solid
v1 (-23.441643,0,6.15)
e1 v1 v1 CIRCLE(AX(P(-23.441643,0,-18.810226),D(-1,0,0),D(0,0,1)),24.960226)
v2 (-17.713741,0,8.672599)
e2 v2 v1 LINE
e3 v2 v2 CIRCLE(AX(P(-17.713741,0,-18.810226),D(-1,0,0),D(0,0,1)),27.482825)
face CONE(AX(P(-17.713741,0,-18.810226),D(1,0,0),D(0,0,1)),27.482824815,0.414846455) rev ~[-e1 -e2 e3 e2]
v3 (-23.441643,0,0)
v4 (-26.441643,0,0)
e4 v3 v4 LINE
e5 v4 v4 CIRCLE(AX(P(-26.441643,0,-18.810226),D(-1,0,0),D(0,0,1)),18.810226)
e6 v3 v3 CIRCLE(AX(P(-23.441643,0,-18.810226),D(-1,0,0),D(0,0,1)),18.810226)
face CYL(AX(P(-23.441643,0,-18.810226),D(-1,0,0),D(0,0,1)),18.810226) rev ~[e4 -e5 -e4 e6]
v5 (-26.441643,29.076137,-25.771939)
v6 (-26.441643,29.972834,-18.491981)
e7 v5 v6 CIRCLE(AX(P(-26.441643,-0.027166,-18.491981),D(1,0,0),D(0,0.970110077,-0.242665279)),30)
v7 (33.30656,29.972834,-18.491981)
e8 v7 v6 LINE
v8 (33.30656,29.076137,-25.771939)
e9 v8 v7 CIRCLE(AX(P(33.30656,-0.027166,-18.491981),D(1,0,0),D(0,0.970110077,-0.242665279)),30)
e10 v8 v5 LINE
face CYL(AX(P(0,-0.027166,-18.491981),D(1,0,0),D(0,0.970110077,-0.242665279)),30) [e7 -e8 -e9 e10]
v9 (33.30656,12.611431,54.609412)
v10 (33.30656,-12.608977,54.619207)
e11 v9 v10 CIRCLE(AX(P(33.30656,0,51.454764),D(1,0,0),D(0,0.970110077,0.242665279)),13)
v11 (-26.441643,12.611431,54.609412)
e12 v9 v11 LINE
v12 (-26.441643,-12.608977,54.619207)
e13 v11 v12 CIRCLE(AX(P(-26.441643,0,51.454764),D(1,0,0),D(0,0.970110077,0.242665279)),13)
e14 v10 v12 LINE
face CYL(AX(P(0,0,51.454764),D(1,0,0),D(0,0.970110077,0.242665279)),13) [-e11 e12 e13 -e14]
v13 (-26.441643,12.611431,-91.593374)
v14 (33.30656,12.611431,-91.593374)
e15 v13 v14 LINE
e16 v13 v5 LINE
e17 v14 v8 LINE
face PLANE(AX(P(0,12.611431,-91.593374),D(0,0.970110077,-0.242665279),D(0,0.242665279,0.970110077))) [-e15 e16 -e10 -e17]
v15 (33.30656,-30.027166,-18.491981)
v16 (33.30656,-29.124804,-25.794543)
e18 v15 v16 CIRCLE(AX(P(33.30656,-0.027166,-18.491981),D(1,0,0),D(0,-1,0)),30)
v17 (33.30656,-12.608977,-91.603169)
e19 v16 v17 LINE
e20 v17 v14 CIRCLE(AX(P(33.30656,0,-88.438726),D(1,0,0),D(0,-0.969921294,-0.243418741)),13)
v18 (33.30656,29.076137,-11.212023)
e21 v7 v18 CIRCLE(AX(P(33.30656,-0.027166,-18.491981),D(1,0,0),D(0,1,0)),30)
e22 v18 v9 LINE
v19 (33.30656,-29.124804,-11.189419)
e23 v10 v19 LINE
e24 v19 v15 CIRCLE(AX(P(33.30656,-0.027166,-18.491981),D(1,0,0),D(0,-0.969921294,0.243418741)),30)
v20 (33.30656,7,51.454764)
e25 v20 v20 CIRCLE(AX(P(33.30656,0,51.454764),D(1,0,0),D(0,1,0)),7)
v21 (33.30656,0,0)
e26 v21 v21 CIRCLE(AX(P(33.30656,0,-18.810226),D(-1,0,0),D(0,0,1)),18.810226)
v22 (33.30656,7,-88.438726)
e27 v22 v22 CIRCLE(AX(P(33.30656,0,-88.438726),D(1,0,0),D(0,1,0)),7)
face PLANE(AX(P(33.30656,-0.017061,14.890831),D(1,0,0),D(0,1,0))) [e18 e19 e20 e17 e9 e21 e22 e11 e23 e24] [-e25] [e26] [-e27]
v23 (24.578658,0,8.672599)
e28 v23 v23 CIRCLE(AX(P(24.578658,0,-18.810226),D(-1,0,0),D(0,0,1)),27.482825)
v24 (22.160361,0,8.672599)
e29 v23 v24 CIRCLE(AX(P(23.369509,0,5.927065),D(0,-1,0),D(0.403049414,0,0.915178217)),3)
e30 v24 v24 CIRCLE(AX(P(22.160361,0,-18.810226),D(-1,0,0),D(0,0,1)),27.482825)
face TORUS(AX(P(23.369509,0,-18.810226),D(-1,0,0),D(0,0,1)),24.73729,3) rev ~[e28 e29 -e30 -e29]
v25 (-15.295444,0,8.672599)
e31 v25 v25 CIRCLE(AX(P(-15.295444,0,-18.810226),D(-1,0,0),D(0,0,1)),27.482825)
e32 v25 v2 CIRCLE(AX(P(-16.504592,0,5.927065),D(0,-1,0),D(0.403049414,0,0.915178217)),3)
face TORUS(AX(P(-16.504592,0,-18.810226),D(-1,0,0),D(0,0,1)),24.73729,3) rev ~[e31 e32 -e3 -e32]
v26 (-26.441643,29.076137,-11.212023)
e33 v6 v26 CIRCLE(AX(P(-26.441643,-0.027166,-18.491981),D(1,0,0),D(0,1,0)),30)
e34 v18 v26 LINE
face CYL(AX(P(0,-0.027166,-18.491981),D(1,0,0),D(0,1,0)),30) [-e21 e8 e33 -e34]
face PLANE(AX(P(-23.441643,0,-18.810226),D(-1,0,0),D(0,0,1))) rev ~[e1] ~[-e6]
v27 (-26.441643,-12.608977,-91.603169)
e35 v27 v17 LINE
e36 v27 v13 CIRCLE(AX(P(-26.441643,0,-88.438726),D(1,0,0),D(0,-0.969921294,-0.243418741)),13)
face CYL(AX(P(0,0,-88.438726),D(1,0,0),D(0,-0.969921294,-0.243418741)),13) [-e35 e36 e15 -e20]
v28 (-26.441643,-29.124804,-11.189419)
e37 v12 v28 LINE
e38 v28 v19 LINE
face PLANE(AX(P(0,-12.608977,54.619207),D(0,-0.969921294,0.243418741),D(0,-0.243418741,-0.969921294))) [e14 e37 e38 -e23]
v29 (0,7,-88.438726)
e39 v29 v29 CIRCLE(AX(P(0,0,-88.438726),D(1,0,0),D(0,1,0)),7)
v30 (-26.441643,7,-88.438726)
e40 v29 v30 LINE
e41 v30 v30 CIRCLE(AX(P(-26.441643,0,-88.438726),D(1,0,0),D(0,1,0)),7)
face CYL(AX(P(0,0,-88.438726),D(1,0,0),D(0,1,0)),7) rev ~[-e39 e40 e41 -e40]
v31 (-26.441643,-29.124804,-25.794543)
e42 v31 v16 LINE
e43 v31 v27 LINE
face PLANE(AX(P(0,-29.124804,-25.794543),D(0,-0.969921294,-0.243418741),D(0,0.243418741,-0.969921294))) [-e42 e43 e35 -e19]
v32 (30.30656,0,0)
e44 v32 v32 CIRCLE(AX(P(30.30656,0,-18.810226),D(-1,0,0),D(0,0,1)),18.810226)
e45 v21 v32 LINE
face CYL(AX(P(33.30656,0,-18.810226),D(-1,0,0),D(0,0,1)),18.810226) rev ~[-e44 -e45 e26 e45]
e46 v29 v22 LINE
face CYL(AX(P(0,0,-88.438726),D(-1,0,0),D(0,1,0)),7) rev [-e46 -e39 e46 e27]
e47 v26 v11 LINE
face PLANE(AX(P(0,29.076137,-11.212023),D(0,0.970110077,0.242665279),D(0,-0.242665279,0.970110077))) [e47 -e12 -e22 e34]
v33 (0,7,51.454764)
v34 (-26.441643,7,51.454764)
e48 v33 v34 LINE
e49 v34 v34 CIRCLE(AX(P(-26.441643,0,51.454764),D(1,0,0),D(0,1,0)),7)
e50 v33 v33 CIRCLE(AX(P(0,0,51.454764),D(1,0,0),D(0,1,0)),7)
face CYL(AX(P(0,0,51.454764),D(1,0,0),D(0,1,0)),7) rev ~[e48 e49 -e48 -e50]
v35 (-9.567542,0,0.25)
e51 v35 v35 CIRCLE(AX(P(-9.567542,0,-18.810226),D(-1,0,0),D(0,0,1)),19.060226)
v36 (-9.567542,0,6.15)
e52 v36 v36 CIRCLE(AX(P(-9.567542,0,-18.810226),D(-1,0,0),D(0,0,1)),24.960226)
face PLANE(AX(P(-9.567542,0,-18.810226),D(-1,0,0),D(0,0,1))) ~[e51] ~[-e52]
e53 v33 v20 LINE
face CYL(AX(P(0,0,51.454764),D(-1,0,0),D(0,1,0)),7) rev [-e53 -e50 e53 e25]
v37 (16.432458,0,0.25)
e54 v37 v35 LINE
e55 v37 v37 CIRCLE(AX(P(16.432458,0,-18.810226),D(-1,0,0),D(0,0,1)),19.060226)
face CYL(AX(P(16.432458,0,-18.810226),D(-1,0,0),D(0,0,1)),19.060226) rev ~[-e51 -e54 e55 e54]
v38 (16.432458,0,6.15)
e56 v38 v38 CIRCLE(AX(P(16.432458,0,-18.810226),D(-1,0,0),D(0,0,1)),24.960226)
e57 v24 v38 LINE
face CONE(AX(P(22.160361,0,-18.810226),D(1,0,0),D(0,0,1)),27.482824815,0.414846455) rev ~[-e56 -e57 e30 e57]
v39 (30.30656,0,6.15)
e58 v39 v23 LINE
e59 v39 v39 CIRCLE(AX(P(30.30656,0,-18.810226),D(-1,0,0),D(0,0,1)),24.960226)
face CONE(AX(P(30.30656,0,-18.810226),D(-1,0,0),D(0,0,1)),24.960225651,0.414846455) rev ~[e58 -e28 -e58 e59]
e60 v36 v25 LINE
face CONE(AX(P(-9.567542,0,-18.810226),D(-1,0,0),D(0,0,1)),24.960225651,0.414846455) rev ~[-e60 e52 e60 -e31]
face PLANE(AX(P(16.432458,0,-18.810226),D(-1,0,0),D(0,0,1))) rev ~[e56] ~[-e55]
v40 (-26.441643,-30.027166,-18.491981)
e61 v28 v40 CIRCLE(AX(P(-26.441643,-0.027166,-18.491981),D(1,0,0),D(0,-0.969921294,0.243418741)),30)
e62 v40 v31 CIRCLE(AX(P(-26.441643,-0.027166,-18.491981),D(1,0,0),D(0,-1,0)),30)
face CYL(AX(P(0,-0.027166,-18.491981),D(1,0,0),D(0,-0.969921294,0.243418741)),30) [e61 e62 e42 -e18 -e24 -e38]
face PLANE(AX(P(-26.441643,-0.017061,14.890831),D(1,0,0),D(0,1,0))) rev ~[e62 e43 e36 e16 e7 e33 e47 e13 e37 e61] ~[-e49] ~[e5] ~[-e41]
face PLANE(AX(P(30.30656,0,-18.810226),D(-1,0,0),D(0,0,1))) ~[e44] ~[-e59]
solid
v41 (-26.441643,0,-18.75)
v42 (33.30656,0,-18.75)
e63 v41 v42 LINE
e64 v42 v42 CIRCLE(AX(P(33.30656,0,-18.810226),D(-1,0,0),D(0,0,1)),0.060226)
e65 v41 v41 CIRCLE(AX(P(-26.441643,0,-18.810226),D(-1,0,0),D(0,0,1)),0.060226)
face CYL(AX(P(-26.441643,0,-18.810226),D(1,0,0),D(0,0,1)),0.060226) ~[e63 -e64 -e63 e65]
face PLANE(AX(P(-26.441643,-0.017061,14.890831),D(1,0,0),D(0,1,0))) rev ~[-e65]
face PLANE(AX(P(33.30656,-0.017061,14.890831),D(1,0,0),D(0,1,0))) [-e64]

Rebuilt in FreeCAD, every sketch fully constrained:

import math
import FreeCAD as App
import Part
import Sketcher

doc = App.newDocument("Part")
body = doc.addObject("PartDesign::Body", "Body")

# Sketch on XZ plane
sketch1 = body.newObject("Sketcher::SketchObject", "Sketch")
sketch1.AttachmentSupport = (doc.getObject("XZ_Plane"), [""])
sketch1.MapMode = "FlatFace"
sketch1.addGeometry([
    Part.LineSegment(App.Vector(-23.4, 0, 0), App.Vector(-26.4, 0, 0)),  # 0
    Part.LineSegment(App.Vector(-26.4, 0, 0), App.Vector(-26.4, -18.8, 0)),  # 1
    Part.LineSegment(App.Vector(-26.4, -18.8, 0), App.Vector(33.3, -18.8, 0)),  # 2
    Part.LineSegment(App.Vector(33.3, -18.8, 0), App.Vector(33.3, 0, 0)),  # 3
    Part.LineSegment(App.Vector(33.3, 0, 0), App.Vector(30.3, 0, 0)),  # 4
    Part.LineSegment(App.Vector(30.3, 0, 0), App.Vector(30.3, 6.2, 0)),  # 5
    Part.LineSegment(App.Vector(30.3, 6.2, 0), App.Vector(24.6, 8.7, 0)),  # 6
    Part.ArcOfCircle(Part.Circle(App.Vector(23.4, 5.9, 0), App.Vector(0, 0, 1), 3), math.radians(66), math.radians(114)),  # 7
    Part.LineSegment(App.Vector(22.2, 8.7, 0), App.Vector(16.4, 6.2, 0)),  # 8
    Part.LineSegment(App.Vector(16.4, 6.2, 0), App.Vector(16.4, 0.2, 0)),  # 9
    Part.LineSegment(App.Vector(16.4, 0.2, 0), App.Vector(-9.6, 0.2, 0)),  # 10
    Part.LineSegment(App.Vector(-9.6, 0.2, 0), App.Vector(-9.6, 6.2, 0)),  # 11
    Part.LineSegment(App.Vector(-9.6, 6.2, 0), App.Vector(-15.3, 8.7, 0)),  # 12
    Part.ArcOfCircle(Part.Circle(App.Vector(-16.5, 5.9, 0), App.Vector(0, 0, 1), 3), math.radians(66), math.radians(114)),  # 13
    Part.LineSegment(App.Vector(-17.7, 8.7, 0), App.Vector(-23.4, 6.2, 0)),  # 14
    Part.LineSegment(App.Vector(-23.4, 6.2, 0), App.Vector(-23.4, 0, 0)),  # 15
], False)
sketch1.addGeometry(Part.LineSegment(App.Vector(33.3, -18.8, 0), App.Vector(-26.4, -18.8, 0)), True)  # axis
sketch1.addConstraint([
    Sketcher.Constraint("Coincident", 0, 2, 1, 1),
    Sketcher.Constraint("Coincident", 1, 2, 2, 1),
    Sketcher.Constraint("Coincident", 2, 2, 3, 1),
    Sketcher.Constraint("Coincident", 3, 2, 4, 1),
    Sketcher.Constraint("Coincident", 4, 2, 5, 1),
    Sketcher.Constraint("Coincident", 5, 2, 6, 1),
    Sketcher.Constraint("Tangent", 6, 2, 7, 1),
    Sketcher.Constraint("Tangent", 7, 2, 8, 1),
    Sketcher.Constraint("Coincident", 8, 2, 9, 1),
    Sketcher.Constraint("Coincident", 9, 2, 10, 1),
    Sketcher.Constraint("Coincident", 10, 2, 11, 1),
    Sketcher.Constraint("Coincident", 11, 2, 12, 1),
    Sketcher.Constraint("Tangent", 12, 2, 13, 1),
    Sketcher.Constraint("Tangent", 13, 2, 14, 1),
    Sketcher.Constraint("Coincident", 14, 2, 15, 1),
    Sketcher.Constraint("Coincident", 15, 2, 0, 1),
    Sketcher.Constraint("Horizontal", 0),
    Sketcher.Constraint("Vertical", 1),
    Sketcher.Constraint("Horizontal", 2),
    Sketcher.Constraint("Vertical", 3),
    Sketcher.Constraint("Horizontal", 4),
    Sketcher.Constraint("Vertical", 5),
    Sketcher.Constraint("Vertical", 9),
    Sketcher.Constraint("Horizontal", 10),
    Sketcher.Constraint("Vertical", 11),
    Sketcher.Constraint("Vertical", 15),
    Sketcher.Constraint("Horizontal", 16),
    Sketcher.Constraint("Equal", 7, 13),
    Sketcher.Constraint("PointOnObject", 0, 2, -1),
    Sketcher.Constraint("PointOnObject", 3, 2, -1),
    Sketcher.Constraint("Parallel", 6, 12),
    Sketcher.Constraint("Parallel", 8, 14),
    Sketcher.Constraint("Horizontal", 7, 3, 13, 3),
    Sketcher.Constraint("Horizontal", 6, 2, 7, 2),
    Sketcher.Constraint("Horizontal", 5, 2, 8, 2),
    Sketcher.Constraint("Horizontal", 8, 2, 11, 2),
    Sketcher.Constraint("Horizontal", 11, 2, 14, 2),
    Sketcher.Constraint("Vertical", 3, 2, 16, 1),
    Sketcher.Constraint("Vertical", 1, 2, 16, 2),
    Sketcher.Constraint("Equal", 0, 4),
    Sketcher.Constraint("Radius", 7, 3.0),
    Sketcher.Constraint("DistanceX", 0, 2, 0, 1, 3.0),
    Sketcher.Constraint("DistanceX", 10, 2, 10, 1, 26.0),
    Sketcher.Constraint("DistanceY", 9, 2, 9, 1, 5.9),
    Sketcher.Constraint("DistanceY", 1, 2, 10, 2, 19.0),
    Sketcher.Constraint("DistanceY", 1, 2, 1, 1, 18.75),
    Sketcher.Constraint("DistanceY", -1, 1, 6, 2, 8.672599),
    Sketcher.Constraint("DistanceX", 13, 3, 7, 3, 39.874102),
    Sketcher.Constraint("DistanceX", -1, 1, 7, 3, 23.369509),
    Sketcher.Constraint("DistanceY", 16, 1, -1, 1, 18.810226),
])
revolution = body.newObject("PartDesign::Revolution", "Revolution")
revolution.Profile = sketch1
revolution.ReferenceAxis = (sketch1, ["Axis0"])
revolution.Angle = 360
body2 = doc.addObject("PartDesign::Body", "Body001")
body2.AllowCompound = True

# Sketch on YZ plane
sketch2 = body2.newObject("Sketcher::SketchObject", "Sketch001")
sketch2.AttachmentSupport = (doc.getObject("YZ_Plane001"), [""])
sketch2.MapMode = "FlatFace"
sketch2.addGeometry([
    Part.LineSegment(App.Vector(-13, 55, 0), App.Vector(-29, -11, 0)),  # 0
    Part.ArcOfCircle(Part.Circle(App.Vector(0, -18, 0), App.Vector(0, 0, 1), 30), math.radians(165.91), math.radians(180)),  # 1
    Part.ArcOfCircle(Part.Circle(App.Vector(0, -18, 0), App.Vector(0, 0, 1), 30), math.radians(180), math.radians(194.09)),  # 2
    Part.LineSegment(App.Vector(-29, -26, 0), App.Vector(-13, -92, 0)),  # 3
    Part.ArcOfCircle(Part.Circle(App.Vector(0, -88, 0), App.Vector(0, 0, 1), 13), math.radians(-166), math.radians(-14)),  # 4
    Part.LineSegment(App.Vector(13, -92, 0), App.Vector(29, -26, 0)),  # 5
    Part.ArcOfCircle(Part.Circle(App.Vector(0, -18, 0), App.Vector(0, 0, 1), 30), math.radians(-14.04), math.radians(0)),  # 6
    Part.ArcOfCircle(Part.Circle(App.Vector(0, -18, 0), App.Vector(0, 0, 1), 30), math.radians(0), math.radians(14.04)),  # 7
    Part.LineSegment(App.Vector(29, -11, 0), App.Vector(13, 55, 0)),  # 8
    Part.ArcOfCircle(Part.Circle(App.Vector(0, 51, 0), App.Vector(0, 0, 1), 13), math.radians(14), math.radians(166)),  # 9
    Part.Circle(App.Vector(0, -88, 0), App.Vector(0, 0, 1), 7),  # 10
    Part.Circle(App.Vector(0, 51, 0), App.Vector(0, 0, 1), 7),  # 11
], False)
sketch2.addConstraint([
    Sketcher.Constraint("Tangent", 0, 2, 1, 1),
    Sketcher.Constraint("Tangent", 1, 2, 2, 1),
    Sketcher.Constraint("Tangent", 2, 2, 3, 1),
    Sketcher.Constraint("Tangent", 3, 2, 4, 1),
    Sketcher.Constraint("Tangent", 4, 2, 5, 1),
    Sketcher.Constraint("Tangent", 5, 2, 6, 1),
    Sketcher.Constraint("Tangent", 6, 2, 7, 1),
    Sketcher.Constraint("Tangent", 7, 2, 8, 1),
    Sketcher.Constraint("Tangent", 8, 2, 9, 1),
    Sketcher.Constraint("Tangent", 9, 2, 0, 1),
    Sketcher.Constraint("Coincident", 6, 3, 1, 3),
    Sketcher.Constraint("Coincident", 10, 3, 4, 3),
    Sketcher.Constraint("Coincident", 11, 3, 9, 3),
    Sketcher.Constraint("Equal", 1, 2),
    Sketcher.Constraint("Equal", 2, 6),
    Sketcher.Constraint("Equal", 6, 7),
    Sketcher.Constraint("Equal", 4, 9),
    Sketcher.Constraint("Equal", 10, 11),
    Sketcher.Constraint("PointOnObject", 4, 3, -2),
    Sketcher.Constraint("PointOnObject", 9, 3, -2),
    Sketcher.Constraint("Horizontal", 7, 3, 1, 2),
    Sketcher.Constraint("Horizontal", 1, 2, 6, 2),
    Sketcher.Constraint("Vertical", 0, 2, 2, 2),
    Sketcher.Constraint("Diameter", 10, 14.0),
    Sketcher.Constraint("Radius", 1, 30.0),
    Sketcher.Constraint("Radius", 4, 13.0),
    Sketcher.Constraint("Distance", 0, 67.84945),
    Sketcher.Constraint("DistanceY", 1, 3, -1, 1, 18.491981),
    Sketcher.Constraint("DistanceY", 0, 2, -1, 1, 11.189419),
])
pad1 = body2.newObject("PartDesign::Pad", "Pad")
pad1.Profile = sketch2
pad1.Type = "TwoLengths"
pad1.Length = 33.30656
pad1.Length2 = 26.441643
doc.recompute()

boolean = body2.newObject("PartDesign::Boolean", "Boolean")
boolean.Type = "Cut"
boolean.addObjects([body])

doc.recompute()
